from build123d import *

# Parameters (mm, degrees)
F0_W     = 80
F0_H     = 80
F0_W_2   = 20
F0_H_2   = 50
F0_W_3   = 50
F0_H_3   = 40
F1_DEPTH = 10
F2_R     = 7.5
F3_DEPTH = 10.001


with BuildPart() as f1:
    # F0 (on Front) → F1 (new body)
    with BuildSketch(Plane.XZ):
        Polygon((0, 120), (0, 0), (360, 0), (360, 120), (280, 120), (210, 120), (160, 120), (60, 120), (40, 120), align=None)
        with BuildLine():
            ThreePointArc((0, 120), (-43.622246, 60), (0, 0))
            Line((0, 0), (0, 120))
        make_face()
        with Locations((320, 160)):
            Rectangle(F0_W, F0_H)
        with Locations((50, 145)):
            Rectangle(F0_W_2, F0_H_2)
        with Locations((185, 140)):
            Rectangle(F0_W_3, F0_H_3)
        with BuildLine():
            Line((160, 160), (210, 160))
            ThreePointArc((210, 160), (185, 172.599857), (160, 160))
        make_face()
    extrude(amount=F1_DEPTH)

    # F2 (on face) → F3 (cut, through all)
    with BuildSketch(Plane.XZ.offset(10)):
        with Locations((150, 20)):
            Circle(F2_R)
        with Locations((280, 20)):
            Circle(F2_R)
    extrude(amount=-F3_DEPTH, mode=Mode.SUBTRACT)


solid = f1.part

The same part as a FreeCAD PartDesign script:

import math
import FreeCAD as App
import Part
import Sketcher

doc = App.newDocument("Part")
params = doc.addObject("Spreadsheet::Sheet", "Params")
for row, (alias, value) in enumerate([
    ("sketch1_width", "360 mm"),
    ("sketch1_width2", "80 mm"),
    ("sketch1_width3", "70 mm"),
    ("sketch1_width4", "100 mm"),
    ("sketch1_width5", "20 mm"),
    ("pad1_length", "10 mm"),
    ("sketch2_diameter", "15 mm"),
], start=1):
    params.set(f"A{row}", alias)
    params.set(f"B{row}", "=" + value)
    params.setAlias(f"B{row}", alias)

body = doc.addObject("PartDesign::Body", "Body")

# Sketch on XZ plane
sketch1 = doc.addObject("Sketcher::SketchObject", "Sketch")
body.addObject(sketch1)
sketch1.AttachmentSupport = (doc.XZ_Plane, [""])
sketch1.MapMode = "FlatFace"
sketch1.addGeometry([
    Part.LineSegment(App.Vector(0, 0, 0), App.Vector(360, 0, 0)),  # 0
    Part.LineSegment(App.Vector(360, 0, 0), App.Vector(360, 200, 0)),  # 1
    Part.LineSegment(App.Vector(360, 200, 0), App.Vector(280, 200, 0)),  # 2
    Part.LineSegment(App.Vector(280, 200, 0), App.Vector(280, 120, 0)),  # 3
    Part.LineSegment(App.Vector(280, 120, 0), App.Vector(210, 120, 0)),  # 4
    Part.LineSegment(App.Vector(210, 120, 0), App.Vector(210, 160, 0)),  # 5
    Part.ArcOfCircle(Part.Circle(App.Vector(185, 141, 0), App.Vector(0, 0, 1), 31), math.radians(37), math.radians(143)),  # 6
    Part.LineSegment(App.Vector(160, 160, 0), App.Vector(160, 120, 0)),  # 7
    Part.LineSegment(App.Vector(160, 120, 0), App.Vector(60, 120, 0)),  # 8
    Part.LineSegment(App.Vector(60, 120, 0), App.Vector(60, 170, 0)),  # 9
    Part.LineSegment(App.Vector(60, 170, 0), App.Vector(40, 170, 0)),  # 10
    Part.LineSegment(App.Vector(40, 170, 0), App.Vector(40, 120, 0)),  # 11
    Part.LineSegment(App.Vector(40, 120, 0), App.Vector(0, 120, 0)),  # 12
    Part.ArcOfCircle(Part.Circle(App.Vector(19, 60, 0), App.Vector(0, 0, 1), 63), math.radians(108), math.radians(252)),  # 13
], False)
sketch1.addConstraint([
    Sketcher.Constraint("Coincident", 0, 2, 1, 1),
    Sketcher.Constraint("Coincident", 1, 2, 2, 1),
    Sketcher.Constraint("Coincident", 2, 2, 3, 1),
    Sketcher.Constraint("Coincident", 3, 2, 4, 1),
    Sketcher.Constraint("Coincident", 4, 2, 5, 1),
    Sketcher.Constraint("Coincident", 5, 2, 6, 1),
    Sketcher.Constraint("Coincident", 6, 2, 7, 1),
    Sketcher.Constraint("Coincident", 7, 2, 8, 1),
    Sketcher.Constraint("Coincident", 8, 2, 9, 1),
    Sketcher.Constraint("Coincident", 9, 2, 10, 1),
    Sketcher.Constraint("Coincident", 10, 2, 11, 1),
    Sketcher.Constraint("Coincident", 11, 2, 12, 1),
    Sketcher.Constraint("Coincident", 12, 2, 13, 1),
    Sketcher.Constraint("Coincident", 13, 2, 0, 1),
    Sketcher.Constraint("Horizontal", 0),
    Sketcher.Constraint("Vertical", 1),
    Sketcher.Constraint("Horizontal", 2),
    Sketcher.Constraint("Vertical", 3),
    Sketcher.Constraint("Horizontal", 4),
    Sketcher.Constraint("Vertical", 5),
    Sketcher.Constraint("Vertical", 7),
    Sketcher.Constraint("Horizontal", 8),
    Sketcher.Constraint("Vertical", 9),
    Sketcher.Constraint("Horizontal", 10),
    Sketcher.Constraint("Vertical", 11),
    Sketcher.Constraint("Horizontal", 12),
    Sketcher.Constraint("Coincident", 13, 2, -1, 1),
    Sketcher.Constraint("PointOnObject", 12, 2, -2),
    Sketcher.Constraint("Horizontal", 5, 2, 6, 2),
    Sketcher.Constraint("Horizontal", 4, 2, 7, 2),
    Sketcher.Constraint("Horizontal", 8, 2, 11, 2),
    Sketcher.Constraint("Equal", 2, 3),
    Sketcher.Constraint("Equal", 12, 5),
    Sketcher.Constraint("DistanceX", 0, 1, 0, 2, 360.0),
    Sketcher.Constraint("DistanceX", 2, 2, 2, 1, 80.0),
    Sketcher.Constraint("DistanceX", 4, 2, 4, 1, 70.0),
    Sketcher.Constraint("DistanceX", 8, 2, 8, 1, 100.0),
    Sketcher.Constraint("DistanceX", 10, 2, 10, 1, 20.0),
    Sketcher.Constraint("DistanceX", 12, 2, 12, 1, 40.0),
    Sketcher.Constraint("DistanceY", 1, 1, 1, 2, 200.0),
    Sketcher.Constraint("DistanceY", 9, 1, 9, 2, 50.0),
    Sketcher.Constraint("Radius", 6, 31.101797),
    Sketcher.Constraint("Radius", 13, 63.074473),
])
sketch1.setExpression("Constraints[33]", "Params.sketch1_width")
sketch1.setExpression("Constraints[34]", "Params.sketch1_width2")
sketch1.setExpression("Constraints[35]", "Params.sketch1_width3")
sketch1.setExpression("Constraints[36]", "Params.sketch1_width4")
sketch1.setExpression("Constraints[37]", "Params.sketch1_width5")
pad1 = doc.addObject("PartDesign::Pad", "Pad")
body.addObject(pad1)
pad1.Profile = sketch1
pad1.setExpression("Length", "Params.pad1_length")

# Sketch on XZ plane
sketch2 = doc.addObject("Sketcher::SketchObject", "Sketch001")
body.addObject(sketch2)
sketch2.AttachmentSupport = (doc.XZ_Plane, [""])
sketch2.MapMode = "FlatFace"
sketch2.AttachmentOffset = App.Placement(App.Vector(0, 0, 10), App.Rotation())
sketch2.addGeometry([
    Part.Circle(App.Vector(150, 20, 0), App.Vector(0, 0, 1), 8),
    Part.Circle(App.Vector(280, 20, 0), App.Vector(0, 0, 1), 8),
], False)
sketch2.addConstraint([
    Sketcher.Constraint("Equal", 0, 1),
    Sketcher.Constraint("Horizontal", 0, 3, 1, 3),
    Sketcher.Constraint("Diameter", 0, 15.0),
    Sketcher.Constraint("DistanceX", -1, 1, 0, 3, 150.0),
    Sketcher.Constraint("DistanceY", -1, 1, 0, 3, 20.0),
    Sketcher.Constraint("DistanceX", -1, 1, 1, 3, 280.0),
])
sketch2.setExpression("Constraints[2]", "Params.sketch2_diameter")
pocket1 = doc.addObject("PartDesign::Pocket", "Pocket")
body.addObject(pocket1)
pocket1.Profile = sketch2
pocket1.Type = "ThroughAll"

doc.recompute()
